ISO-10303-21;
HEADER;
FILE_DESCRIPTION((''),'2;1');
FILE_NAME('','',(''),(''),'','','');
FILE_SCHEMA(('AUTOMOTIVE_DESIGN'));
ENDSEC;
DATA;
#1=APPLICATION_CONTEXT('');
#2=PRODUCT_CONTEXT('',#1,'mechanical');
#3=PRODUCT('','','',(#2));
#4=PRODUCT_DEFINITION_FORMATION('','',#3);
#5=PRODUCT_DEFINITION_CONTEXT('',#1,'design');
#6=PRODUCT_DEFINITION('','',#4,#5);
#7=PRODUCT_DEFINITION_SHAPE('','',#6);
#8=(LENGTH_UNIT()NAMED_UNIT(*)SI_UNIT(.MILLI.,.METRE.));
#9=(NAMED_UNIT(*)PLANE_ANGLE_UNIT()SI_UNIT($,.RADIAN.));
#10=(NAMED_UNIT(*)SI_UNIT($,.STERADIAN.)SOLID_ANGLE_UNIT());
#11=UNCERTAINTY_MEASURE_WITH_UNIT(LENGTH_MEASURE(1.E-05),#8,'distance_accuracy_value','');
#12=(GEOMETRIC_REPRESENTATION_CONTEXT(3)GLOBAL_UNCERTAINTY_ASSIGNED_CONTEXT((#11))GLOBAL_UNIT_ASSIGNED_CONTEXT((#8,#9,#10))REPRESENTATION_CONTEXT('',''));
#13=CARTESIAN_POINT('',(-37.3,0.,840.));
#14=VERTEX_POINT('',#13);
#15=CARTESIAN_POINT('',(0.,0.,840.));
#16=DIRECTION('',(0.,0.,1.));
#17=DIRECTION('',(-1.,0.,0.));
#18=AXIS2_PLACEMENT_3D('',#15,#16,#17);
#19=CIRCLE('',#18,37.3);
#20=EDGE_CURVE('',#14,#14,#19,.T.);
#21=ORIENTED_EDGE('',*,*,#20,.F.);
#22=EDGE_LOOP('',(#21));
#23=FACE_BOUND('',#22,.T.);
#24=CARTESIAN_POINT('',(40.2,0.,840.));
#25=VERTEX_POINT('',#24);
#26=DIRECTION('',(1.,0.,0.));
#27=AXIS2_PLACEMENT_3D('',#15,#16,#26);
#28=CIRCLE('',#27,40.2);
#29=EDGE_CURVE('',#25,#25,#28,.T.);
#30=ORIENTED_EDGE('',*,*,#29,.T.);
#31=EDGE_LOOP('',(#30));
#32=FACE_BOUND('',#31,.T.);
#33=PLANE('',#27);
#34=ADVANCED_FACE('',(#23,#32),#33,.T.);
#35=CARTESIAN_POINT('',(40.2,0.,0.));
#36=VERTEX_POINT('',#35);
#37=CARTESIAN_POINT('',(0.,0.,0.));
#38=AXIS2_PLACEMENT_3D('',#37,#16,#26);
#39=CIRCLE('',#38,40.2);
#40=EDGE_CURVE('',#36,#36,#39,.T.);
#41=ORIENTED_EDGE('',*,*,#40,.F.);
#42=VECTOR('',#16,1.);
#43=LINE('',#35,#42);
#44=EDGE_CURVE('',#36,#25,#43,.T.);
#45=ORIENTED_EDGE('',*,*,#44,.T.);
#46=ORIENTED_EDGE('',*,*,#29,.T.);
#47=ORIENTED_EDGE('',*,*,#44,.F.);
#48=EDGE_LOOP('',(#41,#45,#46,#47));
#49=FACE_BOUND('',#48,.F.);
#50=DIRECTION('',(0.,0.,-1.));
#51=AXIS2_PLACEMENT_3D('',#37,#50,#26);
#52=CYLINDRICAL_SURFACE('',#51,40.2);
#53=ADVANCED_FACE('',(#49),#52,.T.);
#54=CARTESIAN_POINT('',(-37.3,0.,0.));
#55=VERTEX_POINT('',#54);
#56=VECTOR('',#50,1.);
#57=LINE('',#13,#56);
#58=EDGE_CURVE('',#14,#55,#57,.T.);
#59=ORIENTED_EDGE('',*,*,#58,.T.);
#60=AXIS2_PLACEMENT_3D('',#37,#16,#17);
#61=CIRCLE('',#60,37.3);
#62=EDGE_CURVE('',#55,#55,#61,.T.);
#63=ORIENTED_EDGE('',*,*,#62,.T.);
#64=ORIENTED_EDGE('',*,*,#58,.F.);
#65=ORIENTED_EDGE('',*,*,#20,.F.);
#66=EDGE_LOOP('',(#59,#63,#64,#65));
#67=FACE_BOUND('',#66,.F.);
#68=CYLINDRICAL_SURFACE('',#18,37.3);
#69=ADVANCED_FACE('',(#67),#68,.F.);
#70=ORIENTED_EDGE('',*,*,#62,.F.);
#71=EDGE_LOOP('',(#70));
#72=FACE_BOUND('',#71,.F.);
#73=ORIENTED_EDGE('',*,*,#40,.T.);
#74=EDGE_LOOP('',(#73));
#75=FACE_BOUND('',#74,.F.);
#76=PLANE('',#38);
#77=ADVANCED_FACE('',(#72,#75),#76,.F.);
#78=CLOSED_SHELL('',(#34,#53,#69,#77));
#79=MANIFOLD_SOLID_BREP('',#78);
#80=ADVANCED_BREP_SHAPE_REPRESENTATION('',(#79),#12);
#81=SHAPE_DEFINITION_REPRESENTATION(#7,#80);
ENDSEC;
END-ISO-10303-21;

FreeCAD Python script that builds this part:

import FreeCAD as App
import Part
import Sketcher

V = App.Vector
Q = App.Units.Quantity

doc = App.newDocument("Part")
body = doc.addObject("PartDesign::Body", "Body")

# Sketch on XY plane
sketch1 = doc.addObject("Sketcher::SketchObject", "Sketch")
body.addObject(sketch1)
sketch1.AttachmentSupport = (doc.XY_Plane, [""])
sketch1.MapMode = "FlatFace"
sketch1.addGeometry(Part.Circle(V(0, 0, 0), V(0, 0, 1), 40), False)
sketch1.addConstraint(Sketcher.Constraint("Coincident", 0, 3, -1, 1))
sketch1.addConstraint(Sketcher.Constraint("Diameter", 0, Q("80.4 mm")))
pad1 = doc.addObject("PartDesign::Pad", "Pad")
body.addObject(pad1)
pad1.Profile = sketch1
pad1.Length = 840

# Sketch on XY plane
sketch2 = doc.addObject("Sketcher::SketchObject", "Sketch001")
body.addObject(sketch2)
sketch2.AttachmentSupport = (doc.XY_Plane, [""])
sketch2.MapMode = "FlatFace"
sketch2.AttachmentOffset = App.Placement(V(0, 0, 840), App.Rotation())
sketch2.addGeometry(Part.Circle(V(0, 0, 0), V(0, 0, 1), 37), False)
sketch2.addConstraint(Sketcher.Constraint("Coincident", 0, 3, -1, 1))
sketch2.addConstraint(Sketcher.Constraint("Diameter", 0, Q("74.6 mm")))
pocket1 = doc.addObject("PartDesign::Pocket", "Pocket")
body.addObject(pocket1)
pocket1.Profile = sketch2
pocket1.Length = 880

doc.recompute()
